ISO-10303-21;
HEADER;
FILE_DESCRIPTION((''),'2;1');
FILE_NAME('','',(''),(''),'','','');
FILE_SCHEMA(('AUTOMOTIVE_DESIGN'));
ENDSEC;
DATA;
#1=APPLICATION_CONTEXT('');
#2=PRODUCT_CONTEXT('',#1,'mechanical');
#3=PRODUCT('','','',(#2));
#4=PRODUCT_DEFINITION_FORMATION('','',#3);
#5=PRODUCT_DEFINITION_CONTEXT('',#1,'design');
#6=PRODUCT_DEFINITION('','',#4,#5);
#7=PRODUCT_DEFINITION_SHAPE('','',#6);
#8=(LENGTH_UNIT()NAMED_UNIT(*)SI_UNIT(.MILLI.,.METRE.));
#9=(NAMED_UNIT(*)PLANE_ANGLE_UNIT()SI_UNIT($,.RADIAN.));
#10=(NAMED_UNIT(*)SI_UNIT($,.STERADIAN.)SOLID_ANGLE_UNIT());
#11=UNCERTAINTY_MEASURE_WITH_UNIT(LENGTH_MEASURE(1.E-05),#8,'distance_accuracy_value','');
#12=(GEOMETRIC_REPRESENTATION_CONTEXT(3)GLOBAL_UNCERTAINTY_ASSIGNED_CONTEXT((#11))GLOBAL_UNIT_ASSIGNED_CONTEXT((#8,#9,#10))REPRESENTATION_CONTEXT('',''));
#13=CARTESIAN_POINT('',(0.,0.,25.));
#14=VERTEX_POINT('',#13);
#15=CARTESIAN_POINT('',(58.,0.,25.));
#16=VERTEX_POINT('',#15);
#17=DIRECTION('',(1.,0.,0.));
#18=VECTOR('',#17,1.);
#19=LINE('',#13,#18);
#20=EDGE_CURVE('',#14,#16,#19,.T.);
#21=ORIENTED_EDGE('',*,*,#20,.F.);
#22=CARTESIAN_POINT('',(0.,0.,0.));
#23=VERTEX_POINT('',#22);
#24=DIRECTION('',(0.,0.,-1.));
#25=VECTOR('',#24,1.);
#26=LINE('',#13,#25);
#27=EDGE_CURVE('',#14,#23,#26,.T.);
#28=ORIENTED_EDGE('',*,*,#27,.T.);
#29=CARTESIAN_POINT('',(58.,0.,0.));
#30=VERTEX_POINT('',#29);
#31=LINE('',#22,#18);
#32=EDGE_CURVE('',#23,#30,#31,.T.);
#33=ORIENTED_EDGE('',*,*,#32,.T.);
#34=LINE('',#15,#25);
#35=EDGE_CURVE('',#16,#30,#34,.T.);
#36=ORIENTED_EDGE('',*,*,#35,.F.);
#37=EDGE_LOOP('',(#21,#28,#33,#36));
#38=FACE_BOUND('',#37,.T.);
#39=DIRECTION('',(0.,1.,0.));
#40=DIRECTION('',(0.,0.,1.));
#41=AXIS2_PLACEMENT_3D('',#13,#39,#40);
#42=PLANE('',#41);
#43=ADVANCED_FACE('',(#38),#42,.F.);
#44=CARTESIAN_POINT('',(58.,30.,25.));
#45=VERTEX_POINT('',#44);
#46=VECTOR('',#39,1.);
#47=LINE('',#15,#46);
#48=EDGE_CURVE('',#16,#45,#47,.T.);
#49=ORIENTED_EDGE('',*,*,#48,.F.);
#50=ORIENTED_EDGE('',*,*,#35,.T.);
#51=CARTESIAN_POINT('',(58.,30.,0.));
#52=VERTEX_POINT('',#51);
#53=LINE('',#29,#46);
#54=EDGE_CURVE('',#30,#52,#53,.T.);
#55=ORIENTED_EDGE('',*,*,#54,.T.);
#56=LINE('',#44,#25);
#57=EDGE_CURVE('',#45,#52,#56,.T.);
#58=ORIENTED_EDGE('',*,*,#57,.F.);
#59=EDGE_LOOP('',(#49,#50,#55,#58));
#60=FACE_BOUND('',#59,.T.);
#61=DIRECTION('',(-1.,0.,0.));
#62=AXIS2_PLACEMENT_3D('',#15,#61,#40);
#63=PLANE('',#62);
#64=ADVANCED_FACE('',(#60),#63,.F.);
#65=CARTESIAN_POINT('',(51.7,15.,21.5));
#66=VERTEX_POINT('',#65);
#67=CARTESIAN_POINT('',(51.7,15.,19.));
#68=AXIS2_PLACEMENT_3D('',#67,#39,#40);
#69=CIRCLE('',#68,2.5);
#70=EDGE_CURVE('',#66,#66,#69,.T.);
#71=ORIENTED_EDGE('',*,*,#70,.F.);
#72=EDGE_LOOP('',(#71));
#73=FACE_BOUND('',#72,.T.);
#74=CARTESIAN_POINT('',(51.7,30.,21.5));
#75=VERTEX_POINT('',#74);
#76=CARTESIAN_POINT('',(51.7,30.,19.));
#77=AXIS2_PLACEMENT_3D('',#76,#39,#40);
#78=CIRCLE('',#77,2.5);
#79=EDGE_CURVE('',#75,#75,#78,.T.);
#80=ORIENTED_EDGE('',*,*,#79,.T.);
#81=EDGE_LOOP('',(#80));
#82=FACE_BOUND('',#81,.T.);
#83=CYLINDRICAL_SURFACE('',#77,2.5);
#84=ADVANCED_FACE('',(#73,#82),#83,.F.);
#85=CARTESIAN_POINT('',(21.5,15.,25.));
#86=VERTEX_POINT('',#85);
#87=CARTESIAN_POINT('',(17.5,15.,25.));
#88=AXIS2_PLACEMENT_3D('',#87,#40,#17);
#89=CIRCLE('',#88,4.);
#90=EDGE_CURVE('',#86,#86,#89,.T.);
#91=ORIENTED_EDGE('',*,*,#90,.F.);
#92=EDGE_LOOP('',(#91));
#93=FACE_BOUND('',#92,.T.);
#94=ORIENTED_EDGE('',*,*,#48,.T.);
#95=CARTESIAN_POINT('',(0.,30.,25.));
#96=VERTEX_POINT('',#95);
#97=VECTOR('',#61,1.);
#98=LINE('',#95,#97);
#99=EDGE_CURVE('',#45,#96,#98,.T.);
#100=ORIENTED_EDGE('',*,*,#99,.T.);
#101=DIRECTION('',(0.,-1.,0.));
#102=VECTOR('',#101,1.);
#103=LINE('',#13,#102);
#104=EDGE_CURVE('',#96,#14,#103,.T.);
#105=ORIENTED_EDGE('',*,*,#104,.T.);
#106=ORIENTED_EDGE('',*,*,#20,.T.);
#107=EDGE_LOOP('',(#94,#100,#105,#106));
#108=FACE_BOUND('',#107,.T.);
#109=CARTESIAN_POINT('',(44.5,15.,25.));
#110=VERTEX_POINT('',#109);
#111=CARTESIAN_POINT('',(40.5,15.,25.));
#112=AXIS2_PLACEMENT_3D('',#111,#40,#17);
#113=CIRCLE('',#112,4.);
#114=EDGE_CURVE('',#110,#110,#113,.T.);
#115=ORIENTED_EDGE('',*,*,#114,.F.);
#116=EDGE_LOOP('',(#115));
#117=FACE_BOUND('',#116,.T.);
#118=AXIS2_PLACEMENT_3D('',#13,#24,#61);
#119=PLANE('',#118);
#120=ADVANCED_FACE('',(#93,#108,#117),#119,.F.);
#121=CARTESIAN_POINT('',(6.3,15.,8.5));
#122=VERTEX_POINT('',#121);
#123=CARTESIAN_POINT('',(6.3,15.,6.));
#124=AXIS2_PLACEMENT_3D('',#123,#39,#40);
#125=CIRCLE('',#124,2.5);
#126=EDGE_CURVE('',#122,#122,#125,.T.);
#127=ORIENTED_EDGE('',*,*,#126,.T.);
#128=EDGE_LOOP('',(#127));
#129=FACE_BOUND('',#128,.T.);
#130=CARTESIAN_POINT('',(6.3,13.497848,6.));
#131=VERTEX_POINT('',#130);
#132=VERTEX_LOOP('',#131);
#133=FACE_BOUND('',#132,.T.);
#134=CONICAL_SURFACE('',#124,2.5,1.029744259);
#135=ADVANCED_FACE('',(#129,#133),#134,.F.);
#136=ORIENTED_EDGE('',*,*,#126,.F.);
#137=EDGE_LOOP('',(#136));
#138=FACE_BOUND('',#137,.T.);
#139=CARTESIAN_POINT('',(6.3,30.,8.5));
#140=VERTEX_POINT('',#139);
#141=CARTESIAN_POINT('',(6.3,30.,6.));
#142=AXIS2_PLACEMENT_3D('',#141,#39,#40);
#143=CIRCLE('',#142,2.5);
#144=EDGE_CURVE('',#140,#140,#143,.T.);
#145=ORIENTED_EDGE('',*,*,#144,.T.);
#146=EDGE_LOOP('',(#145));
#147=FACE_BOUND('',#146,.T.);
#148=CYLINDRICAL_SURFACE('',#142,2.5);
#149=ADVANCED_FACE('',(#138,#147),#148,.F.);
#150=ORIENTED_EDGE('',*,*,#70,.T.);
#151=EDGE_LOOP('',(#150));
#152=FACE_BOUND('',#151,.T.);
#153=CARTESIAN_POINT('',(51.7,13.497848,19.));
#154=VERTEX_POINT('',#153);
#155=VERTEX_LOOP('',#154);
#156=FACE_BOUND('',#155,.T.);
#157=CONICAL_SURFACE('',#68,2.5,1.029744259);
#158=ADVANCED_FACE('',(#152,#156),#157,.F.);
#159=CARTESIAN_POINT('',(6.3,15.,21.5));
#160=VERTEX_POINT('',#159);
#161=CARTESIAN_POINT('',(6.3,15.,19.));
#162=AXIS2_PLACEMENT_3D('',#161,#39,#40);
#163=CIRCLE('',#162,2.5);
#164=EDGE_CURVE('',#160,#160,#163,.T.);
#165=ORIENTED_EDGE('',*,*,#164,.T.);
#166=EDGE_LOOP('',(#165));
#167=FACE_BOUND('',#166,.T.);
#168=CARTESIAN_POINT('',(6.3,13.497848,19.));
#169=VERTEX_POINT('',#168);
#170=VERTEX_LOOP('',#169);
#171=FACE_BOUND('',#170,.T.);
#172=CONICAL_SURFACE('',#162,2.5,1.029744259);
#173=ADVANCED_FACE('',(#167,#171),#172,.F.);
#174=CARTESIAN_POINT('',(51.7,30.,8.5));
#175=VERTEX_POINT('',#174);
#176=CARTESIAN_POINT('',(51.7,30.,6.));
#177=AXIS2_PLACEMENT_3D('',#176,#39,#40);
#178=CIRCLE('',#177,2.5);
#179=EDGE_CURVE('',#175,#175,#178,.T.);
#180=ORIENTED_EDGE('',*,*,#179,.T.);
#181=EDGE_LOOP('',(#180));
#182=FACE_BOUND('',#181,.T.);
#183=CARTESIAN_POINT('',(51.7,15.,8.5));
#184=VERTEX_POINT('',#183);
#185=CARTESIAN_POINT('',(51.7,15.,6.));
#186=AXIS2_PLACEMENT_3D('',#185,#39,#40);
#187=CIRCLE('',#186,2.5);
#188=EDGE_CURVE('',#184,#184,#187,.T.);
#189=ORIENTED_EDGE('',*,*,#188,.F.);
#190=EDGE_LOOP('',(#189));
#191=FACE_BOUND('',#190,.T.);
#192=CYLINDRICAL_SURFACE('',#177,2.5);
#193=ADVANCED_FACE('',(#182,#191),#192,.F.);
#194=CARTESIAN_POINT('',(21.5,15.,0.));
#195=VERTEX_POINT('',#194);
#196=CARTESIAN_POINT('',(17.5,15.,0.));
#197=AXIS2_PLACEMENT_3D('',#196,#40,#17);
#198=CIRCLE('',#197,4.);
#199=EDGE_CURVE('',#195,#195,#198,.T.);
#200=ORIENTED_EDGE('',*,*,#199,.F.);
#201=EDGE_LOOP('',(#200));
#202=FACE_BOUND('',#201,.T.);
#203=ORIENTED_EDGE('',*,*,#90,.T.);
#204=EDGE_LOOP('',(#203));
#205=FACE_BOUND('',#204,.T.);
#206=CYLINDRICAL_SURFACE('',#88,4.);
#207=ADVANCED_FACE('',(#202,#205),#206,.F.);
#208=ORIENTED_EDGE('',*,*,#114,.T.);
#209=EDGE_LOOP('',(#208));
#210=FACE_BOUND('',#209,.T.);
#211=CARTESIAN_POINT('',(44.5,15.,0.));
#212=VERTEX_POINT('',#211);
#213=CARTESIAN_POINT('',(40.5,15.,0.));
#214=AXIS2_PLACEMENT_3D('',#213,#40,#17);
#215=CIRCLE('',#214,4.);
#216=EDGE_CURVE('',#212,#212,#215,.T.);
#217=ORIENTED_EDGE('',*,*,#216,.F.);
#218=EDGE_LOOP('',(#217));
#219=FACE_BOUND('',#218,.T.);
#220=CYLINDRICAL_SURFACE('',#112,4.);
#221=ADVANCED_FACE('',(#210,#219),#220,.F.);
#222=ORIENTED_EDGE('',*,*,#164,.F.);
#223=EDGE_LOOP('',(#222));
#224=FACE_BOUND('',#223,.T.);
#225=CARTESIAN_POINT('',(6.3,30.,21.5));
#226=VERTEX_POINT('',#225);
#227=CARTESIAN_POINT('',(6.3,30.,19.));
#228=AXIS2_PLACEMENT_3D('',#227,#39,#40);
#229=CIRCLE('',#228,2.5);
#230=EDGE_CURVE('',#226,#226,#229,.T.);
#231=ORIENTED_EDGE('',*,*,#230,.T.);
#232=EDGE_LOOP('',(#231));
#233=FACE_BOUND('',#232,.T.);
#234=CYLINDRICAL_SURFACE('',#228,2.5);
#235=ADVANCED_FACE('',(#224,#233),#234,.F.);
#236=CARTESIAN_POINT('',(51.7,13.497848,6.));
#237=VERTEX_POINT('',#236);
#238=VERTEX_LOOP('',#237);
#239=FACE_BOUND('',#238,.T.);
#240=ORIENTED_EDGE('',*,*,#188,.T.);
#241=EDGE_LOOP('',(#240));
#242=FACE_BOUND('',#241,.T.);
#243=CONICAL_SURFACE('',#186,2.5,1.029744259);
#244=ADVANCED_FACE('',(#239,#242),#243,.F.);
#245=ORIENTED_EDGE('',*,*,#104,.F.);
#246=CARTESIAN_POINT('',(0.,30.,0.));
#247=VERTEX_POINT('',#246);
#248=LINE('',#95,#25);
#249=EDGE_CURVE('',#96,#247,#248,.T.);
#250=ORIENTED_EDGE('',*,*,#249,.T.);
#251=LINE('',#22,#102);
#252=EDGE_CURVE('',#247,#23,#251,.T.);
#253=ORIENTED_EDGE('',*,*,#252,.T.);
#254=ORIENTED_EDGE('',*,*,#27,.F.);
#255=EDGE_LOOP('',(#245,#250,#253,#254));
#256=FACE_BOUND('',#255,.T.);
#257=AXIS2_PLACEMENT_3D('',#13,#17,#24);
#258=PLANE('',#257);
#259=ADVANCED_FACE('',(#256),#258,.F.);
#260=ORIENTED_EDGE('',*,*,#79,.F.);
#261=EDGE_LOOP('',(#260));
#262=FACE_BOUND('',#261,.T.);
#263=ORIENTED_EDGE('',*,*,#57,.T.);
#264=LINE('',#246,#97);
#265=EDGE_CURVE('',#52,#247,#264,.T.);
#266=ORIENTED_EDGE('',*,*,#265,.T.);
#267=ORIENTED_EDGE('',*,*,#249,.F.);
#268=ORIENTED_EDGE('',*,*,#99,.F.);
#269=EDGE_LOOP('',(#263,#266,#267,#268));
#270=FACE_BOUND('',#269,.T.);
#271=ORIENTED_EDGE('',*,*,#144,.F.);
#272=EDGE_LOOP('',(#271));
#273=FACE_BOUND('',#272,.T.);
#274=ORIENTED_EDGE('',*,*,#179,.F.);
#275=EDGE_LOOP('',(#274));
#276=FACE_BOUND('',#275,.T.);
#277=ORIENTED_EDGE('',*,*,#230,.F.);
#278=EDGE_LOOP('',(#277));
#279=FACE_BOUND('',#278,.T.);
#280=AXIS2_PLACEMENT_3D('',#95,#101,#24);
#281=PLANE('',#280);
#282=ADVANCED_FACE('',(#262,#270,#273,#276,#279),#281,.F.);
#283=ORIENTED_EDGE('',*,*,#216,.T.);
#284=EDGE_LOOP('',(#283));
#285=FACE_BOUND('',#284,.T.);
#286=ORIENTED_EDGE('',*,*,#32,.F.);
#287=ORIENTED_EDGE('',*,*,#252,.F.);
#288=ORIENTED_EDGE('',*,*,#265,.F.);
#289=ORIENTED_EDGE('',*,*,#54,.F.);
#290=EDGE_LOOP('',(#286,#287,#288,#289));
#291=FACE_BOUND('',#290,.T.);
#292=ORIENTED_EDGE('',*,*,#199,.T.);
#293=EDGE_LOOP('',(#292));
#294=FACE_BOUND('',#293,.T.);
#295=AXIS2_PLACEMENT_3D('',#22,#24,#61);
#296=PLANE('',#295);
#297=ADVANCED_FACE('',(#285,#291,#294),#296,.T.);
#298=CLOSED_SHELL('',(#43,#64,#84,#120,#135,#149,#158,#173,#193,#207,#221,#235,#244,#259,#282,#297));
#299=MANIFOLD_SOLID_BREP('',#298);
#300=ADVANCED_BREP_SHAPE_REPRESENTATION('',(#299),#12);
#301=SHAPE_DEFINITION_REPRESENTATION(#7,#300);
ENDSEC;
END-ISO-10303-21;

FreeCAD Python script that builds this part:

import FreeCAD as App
import Part
import Sketcher

V = App.Vector
Q = App.Units.Quantity

doc = App.newDocument("Part")
body = doc.addObject("PartDesign::Body", "Body")

sketch1 = doc.addObject("Sketcher::SketchObject", "Sketch")
body.addObject(sketch1)
sketch1.AttachmentSupport = (doc.XY_Plane, [""])
sketch1.MapMode = "FlatFace"
sketch1.addGeometry([
    Part.LineSegment(V(0, 30, 0), V(0, 0, 0)),
    Part.LineSegment(V(0, 0, 0), V(58, 0, 0)),
    Part.LineSegment(V(58, 0, 0), V(58, 30, 0)),
    Part.LineSegment(V(58, 30, 0), V(0, 30, 0)),
], False)
sketch1.addConstraint([
    Sketcher.Constraint("Coincident", 0, 2, 1, 1),
    Sketcher.Constraint("Coincident", 1, 2, 2, 1),
    Sketcher.Constraint("Coincident", 2, 2, 3, 1),
    Sketcher.Constraint("Coincident", 3, 2, 0, 1),
    Sketcher.Constraint("Vertical", 0),
    Sketcher.Constraint("Horizontal", 1),
    Sketcher.Constraint("Vertical", 2),
    Sketcher.Constraint("Horizontal", 3),
    Sketcher.Constraint("Coincident", 0, 2, -1, 1),
    Sketcher.Constraint("DistanceX", 1, 1, 1, 2, Q("58 mm")),
    Sketcher.Constraint("DistanceY", 0, 2, 0, 1, Q("30 mm")),
])
pad1 = doc.addObject("PartDesign::Pad", "Pad")
body.addObject(pad1)
pad1.Profile = sketch1
pad1.Length = 25

sketch2 = doc.addObject("Sketcher::SketchObject", "Sketch001")
body.addObject(sketch2)
sketch2.AttachmentSupport = (doc.XZ_Plane, [""])
sketch2.MapMode = "FlatFace"
sketch2.AttachmentOffset = App.Placement(V(0, 0, -30), App.Rotation())
sketch2.addGeometry([
    Part.Circle(V(6.3, 6, 0), V(0, 0, 1), 2.5),
    Part.Circle(V(6.3, 19, 0), V(0, 0, 1), 2.5),
    Part.Circle(V(51.7, 19, 0), V(0, 0, 1), 2.5),
    Part.Circle(V(51.7, 6, 0), V(0, 0, 1), 2.5),
], False)
sketch2.addConstraint([
    Sketcher.Constraint("Equal", 0, 1),
    Sketcher.Constraint("Equal", 1, 2),
    Sketcher.Constraint("Equal", 2, 3),
    Sketcher.Constraint("Horizontal", 1, 3, 2, 3),
    Sketcher.Constraint("Horizontal", 0, 3, 3, 3),
    Sketcher.Constraint("Vertical", 0, 3, 1, 3),
    Sketcher.Constraint("Vertical", 2, 3, 3, 3),
    Sketcher.Constraint("Diameter", 0, Q("5 mm")),
    Sketcher.Constraint("DistanceY", -1, 1, 0, 3, Q("6 mm")),
    Sketcher.Constraint("DistanceY", -1, 1, 1, 3, Q("19 mm")),
    Sketcher.Constraint("DistanceX", -1, 1, 0, 3, Q("6.3 mm")),
    Sketcher.Constraint("DistanceX", -1, 1, 2, 3, Q("51.7 mm")),
])
doc.recompute()
hole = doc.addObject("PartDesign::Hole", "Hole")
body.addObject(hole)
hole.Profile = sketch2
hole.ThreadType = "None"
hole.Diameter = 5
hole.DepthType = "Dimension"
hole.Depth = 15
hole.DrillPoint = "Angled"
hole.DrillPointAngle = 118
hole.Reversed = True

sketch3 = doc.addObject("Sketcher::SketchObject", "Sketch002")
body.addObject(sketch3)
sketch3.AttachmentSupport = (doc.XY_Plane, [""])
sketch3.MapMode = "FlatFace"
sketch3.AttachmentOffset = App.Placement(V(0, 0, 25), App.Rotation())
sketch3.addGeometry([
    Part.Circle(V(17.5, 15, 0), V(0, 0, 1), 4),
    Part.Circle(V(40.5, 15, 0), V(0, 0, 1), 4),
], False)
sketch3.addConstraint([
    Sketcher.Constraint("Equal", 0, 1),
    Sketcher.Constraint("Horizontal", 0, 3, 1, 3),
    Sketcher.Constraint("Diameter", 0, Q("8 mm")),
    Sketcher.Constraint("DistanceY", -1, 1, 0, 3, Q("15 mm")),
    Sketcher.Constraint("DistanceX", 0, 3, 1, 3, Q("23 mm")),
    Sketcher.Constraint("DistanceX", -1, 1, 0, 3, Q("17.5 mm")),
])
doc.recompute()
hole2 = doc.addObject("PartDesign::Hole", "Hole001")
body.addObject(hole2)
hole2.Profile = sketch3
hole2.ThreadType = "None"
hole2.Diameter = 8
hole2.DepthType = "ThroughAll"

doc.recompute()
